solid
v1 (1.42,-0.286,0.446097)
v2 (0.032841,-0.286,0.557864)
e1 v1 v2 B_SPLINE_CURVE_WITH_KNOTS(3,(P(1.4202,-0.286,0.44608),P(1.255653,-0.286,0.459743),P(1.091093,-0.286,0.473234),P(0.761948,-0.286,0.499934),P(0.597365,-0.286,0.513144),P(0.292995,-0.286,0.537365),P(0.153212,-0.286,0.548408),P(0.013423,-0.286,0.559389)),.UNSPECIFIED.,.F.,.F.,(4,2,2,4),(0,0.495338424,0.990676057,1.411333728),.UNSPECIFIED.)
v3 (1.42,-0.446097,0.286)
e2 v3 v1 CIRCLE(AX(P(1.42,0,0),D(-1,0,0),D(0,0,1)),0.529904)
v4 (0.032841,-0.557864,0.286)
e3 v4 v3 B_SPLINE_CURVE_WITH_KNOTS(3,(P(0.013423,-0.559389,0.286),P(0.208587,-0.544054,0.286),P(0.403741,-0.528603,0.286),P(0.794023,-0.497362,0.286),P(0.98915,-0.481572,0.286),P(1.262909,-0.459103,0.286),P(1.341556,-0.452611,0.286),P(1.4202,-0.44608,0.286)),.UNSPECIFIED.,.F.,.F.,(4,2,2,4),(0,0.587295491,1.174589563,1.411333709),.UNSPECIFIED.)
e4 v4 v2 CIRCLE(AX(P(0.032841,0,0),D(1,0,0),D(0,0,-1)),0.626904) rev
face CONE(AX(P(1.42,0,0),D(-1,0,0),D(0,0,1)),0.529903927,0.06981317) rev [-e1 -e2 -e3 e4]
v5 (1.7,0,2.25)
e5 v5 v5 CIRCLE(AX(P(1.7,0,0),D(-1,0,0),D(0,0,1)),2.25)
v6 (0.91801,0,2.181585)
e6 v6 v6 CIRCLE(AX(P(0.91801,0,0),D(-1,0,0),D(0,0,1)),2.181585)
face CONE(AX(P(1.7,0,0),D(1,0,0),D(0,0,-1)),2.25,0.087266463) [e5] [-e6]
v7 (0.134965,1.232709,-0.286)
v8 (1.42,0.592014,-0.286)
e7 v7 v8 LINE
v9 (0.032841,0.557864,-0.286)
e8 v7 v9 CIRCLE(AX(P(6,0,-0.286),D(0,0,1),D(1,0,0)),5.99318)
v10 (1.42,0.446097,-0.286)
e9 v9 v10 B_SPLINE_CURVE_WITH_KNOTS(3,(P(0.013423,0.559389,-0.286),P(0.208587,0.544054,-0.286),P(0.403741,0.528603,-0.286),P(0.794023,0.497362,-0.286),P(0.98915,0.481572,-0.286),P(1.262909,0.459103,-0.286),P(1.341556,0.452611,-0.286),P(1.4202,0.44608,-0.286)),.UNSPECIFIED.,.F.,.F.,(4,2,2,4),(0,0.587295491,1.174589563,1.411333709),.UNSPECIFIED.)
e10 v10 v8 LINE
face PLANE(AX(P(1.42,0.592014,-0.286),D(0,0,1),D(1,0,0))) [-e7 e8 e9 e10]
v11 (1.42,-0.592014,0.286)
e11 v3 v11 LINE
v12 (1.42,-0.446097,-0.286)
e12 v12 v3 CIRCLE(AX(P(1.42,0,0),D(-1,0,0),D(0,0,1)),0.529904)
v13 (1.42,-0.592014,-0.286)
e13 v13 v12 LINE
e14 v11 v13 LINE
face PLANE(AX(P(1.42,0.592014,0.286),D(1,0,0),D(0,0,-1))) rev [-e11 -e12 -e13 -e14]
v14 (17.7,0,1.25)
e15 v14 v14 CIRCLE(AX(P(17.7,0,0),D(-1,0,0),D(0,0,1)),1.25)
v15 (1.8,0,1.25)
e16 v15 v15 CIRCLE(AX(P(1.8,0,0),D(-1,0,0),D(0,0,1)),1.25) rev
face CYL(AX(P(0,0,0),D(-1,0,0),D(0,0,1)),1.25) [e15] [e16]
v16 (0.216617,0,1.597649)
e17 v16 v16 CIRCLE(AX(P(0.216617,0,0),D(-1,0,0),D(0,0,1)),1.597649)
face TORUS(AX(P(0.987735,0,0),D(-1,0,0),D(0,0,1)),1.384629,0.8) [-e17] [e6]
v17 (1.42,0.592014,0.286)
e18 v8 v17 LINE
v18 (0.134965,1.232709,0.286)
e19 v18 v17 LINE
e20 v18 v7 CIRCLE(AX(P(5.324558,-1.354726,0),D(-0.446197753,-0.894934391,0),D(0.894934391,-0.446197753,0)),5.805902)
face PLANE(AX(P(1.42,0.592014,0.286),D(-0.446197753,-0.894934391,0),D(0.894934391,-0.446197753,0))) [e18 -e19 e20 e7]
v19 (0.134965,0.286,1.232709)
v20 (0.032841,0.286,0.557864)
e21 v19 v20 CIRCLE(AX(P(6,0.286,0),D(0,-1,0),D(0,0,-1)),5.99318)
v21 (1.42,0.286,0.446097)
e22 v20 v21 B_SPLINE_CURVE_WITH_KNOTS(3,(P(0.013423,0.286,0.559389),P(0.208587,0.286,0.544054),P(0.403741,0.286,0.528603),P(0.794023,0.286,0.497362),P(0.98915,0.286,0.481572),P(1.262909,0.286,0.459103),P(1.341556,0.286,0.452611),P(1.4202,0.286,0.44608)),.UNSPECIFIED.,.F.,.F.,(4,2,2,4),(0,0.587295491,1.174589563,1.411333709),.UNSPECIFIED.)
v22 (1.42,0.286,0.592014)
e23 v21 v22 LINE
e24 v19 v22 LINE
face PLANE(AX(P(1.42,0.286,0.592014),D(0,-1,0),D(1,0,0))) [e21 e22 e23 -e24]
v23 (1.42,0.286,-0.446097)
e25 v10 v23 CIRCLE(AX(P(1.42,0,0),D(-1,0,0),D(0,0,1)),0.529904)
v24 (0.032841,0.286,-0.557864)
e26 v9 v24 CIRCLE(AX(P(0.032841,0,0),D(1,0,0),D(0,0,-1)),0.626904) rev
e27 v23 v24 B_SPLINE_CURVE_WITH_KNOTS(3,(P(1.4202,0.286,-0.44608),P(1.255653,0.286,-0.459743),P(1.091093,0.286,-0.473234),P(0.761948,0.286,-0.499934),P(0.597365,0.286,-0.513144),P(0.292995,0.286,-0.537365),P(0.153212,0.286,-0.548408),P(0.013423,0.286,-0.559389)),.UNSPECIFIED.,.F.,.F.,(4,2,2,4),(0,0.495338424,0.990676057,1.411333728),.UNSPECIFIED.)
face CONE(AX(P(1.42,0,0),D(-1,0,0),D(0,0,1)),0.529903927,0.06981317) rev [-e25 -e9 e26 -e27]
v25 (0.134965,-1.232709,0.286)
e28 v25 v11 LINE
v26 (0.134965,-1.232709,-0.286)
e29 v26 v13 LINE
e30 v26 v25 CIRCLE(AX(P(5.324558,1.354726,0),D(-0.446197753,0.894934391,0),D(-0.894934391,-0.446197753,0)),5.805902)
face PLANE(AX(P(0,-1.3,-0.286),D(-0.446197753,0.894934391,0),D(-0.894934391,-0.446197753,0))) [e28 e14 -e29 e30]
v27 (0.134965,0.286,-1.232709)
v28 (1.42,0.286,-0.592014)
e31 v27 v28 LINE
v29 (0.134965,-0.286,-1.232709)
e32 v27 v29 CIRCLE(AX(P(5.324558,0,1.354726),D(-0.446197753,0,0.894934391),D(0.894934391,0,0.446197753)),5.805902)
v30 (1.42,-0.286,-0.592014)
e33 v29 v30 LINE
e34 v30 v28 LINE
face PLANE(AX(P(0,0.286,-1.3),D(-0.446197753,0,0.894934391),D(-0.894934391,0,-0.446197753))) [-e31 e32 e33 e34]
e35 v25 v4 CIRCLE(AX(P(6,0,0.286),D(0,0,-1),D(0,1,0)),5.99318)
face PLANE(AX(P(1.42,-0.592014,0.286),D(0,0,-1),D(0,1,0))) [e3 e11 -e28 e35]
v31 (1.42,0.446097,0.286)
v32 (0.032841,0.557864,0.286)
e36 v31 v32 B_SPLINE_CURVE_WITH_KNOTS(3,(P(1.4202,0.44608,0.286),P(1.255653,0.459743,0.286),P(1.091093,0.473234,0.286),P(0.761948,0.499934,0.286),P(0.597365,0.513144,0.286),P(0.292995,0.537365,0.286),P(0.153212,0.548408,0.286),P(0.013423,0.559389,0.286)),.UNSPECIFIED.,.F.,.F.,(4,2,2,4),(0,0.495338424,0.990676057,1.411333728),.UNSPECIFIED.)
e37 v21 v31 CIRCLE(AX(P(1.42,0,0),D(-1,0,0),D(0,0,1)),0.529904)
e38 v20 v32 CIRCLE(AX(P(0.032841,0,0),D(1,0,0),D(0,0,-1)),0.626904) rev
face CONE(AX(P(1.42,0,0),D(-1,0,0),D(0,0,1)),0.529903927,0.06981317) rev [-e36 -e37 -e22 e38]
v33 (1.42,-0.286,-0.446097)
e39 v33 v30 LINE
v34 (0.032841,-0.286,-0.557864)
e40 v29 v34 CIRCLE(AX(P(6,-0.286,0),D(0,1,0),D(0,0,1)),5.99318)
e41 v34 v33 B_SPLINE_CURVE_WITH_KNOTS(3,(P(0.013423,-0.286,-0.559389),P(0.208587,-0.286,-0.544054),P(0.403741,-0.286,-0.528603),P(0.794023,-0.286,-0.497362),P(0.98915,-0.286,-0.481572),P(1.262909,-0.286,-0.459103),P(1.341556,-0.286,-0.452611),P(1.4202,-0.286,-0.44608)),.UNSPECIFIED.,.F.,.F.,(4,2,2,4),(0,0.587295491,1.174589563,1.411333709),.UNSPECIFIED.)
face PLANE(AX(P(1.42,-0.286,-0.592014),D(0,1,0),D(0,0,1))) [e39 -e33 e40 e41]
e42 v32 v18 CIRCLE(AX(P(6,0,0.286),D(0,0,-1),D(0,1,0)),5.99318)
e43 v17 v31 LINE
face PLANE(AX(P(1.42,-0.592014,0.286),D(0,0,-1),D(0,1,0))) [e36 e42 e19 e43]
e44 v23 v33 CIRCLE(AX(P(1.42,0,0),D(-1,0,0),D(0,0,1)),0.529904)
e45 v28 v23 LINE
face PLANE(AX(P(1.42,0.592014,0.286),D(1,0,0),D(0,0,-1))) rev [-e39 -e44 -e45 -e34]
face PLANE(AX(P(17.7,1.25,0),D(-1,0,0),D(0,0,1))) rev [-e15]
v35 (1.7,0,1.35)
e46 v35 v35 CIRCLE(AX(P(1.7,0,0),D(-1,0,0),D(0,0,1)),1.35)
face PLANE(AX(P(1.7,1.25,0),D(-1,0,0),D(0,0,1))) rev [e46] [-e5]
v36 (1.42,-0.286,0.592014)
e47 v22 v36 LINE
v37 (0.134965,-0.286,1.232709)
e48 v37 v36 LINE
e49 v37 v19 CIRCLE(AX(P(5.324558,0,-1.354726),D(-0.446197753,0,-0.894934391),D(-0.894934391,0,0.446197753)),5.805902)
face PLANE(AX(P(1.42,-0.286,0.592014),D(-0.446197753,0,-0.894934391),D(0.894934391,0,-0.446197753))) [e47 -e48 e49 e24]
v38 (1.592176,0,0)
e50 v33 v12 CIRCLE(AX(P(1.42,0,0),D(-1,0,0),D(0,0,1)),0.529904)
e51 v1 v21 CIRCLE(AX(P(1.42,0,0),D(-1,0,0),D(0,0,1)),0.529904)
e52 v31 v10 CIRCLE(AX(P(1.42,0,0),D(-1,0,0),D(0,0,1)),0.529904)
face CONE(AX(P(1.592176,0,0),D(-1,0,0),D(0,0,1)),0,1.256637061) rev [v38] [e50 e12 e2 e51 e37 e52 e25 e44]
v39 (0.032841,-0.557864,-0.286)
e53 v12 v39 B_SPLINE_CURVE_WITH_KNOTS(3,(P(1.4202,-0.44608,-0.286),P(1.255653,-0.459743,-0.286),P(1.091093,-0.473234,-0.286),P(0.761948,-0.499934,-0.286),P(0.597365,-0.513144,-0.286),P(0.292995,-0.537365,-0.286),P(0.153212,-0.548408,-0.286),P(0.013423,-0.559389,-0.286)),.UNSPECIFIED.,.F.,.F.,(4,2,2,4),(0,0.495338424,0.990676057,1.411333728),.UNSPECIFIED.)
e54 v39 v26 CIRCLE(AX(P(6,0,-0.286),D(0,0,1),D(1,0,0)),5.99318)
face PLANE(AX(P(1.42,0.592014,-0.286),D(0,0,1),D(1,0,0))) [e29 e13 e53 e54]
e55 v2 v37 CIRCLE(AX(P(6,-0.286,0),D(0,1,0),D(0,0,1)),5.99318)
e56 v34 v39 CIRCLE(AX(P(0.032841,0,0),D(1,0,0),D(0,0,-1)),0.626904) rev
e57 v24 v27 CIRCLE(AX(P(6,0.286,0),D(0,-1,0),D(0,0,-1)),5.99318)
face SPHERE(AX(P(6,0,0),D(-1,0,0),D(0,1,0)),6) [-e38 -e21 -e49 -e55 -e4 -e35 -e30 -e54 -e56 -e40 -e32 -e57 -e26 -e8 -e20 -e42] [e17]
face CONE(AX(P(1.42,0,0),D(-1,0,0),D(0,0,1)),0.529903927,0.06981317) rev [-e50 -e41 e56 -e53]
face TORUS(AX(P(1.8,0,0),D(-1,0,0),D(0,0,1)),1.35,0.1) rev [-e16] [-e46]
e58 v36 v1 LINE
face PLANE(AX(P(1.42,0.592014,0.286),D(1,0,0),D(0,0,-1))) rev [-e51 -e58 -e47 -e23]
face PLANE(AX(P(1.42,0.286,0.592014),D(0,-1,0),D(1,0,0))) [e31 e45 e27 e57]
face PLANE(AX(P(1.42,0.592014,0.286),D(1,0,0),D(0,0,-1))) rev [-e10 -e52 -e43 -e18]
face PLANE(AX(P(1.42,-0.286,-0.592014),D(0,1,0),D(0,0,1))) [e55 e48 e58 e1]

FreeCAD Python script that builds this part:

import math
import FreeCAD as App
import Part
import Sketcher
Q = App.Units.Quantity


def edges_at(feature, points):
    """Names of the edges that pass closest to the given points."""
    edges = feature.Shape.Edges
    near = lambda p: min(range(len(edges)), key=lambda i: edges[i].distToShape(Part.Vertex(*p))[0])
    return sorted({f"Edge{near(p) + 1}" for p in points})

doc = App.newDocument("Part")
body = doc.addObject("PartDesign::Body", "Body")

# Sketch on XY plane
sketch1 = body.newObject("Sketcher::SketchObject", "Sketch")
sketch1.AttachmentSupport = (doc.getObject("XY_Plane"), [""])
sketch1.MapMode = "FlatFace"
sketch1.addGeometry([
    Part.LineSegment(App.Vector(1.7, 1.2, 0), App.Vector(1.7, 2.2, 0)),  # 0
    Part.LineSegment(App.Vector(1.7, 2.2, 0), App.Vector(0.9, 2.2, 0)),  # 1
    Part.ArcOfCircle(Part.Circle(App.Vector(1, 1.4, 0), App.Vector(0, 0, 1), 0.8), math.radians(95), math.radians(165)),  # 2
    Part.ArcOfCircle(Part.Circle(App.Vector(6, 0, 0), App.Vector(0, 0, 1), 6), math.radians(164.56), math.radians(180)),  # 3
    Part.LineSegment(App.Vector(0, 0, 0), App.Vector(17.7, 0, 0)),  # 4
    Part.LineSegment(App.Vector(17.7, 0, 0), App.Vector(17.7, 1.2, 0)),  # 5
    Part.LineSegment(App.Vector(17.7, 1.2, 0), App.Vector(1.7, 1.2, 0)),  # 6
], False)
sketch1.addConstraint([
    Sketcher.Constraint("Coincident", 0, 2, 1, 1),
    Sketcher.Constraint("Tangent", 1, 2, 2, 1),
    Sketcher.Constraint("Tangent", 2, 2, 3, 1),
    Sketcher.Constraint("Coincident", 3, 2, 4, 1),
    Sketcher.Constraint("Coincident", 4, 2, 5, 1),
    Sketcher.Constraint("Coincident", 5, 2, 6, 1),
    Sketcher.Constraint("Coincident", 6, 2, 0, 1),
    Sketcher.Constraint("Vertical", 0),
    Sketcher.Constraint("Horizontal", 4),
    Sketcher.Constraint("Vertical", 5),
    Sketcher.Constraint("Horizontal", 6),
    Sketcher.Constraint("Coincident", 3, 2, -1, 1),
    Sketcher.Constraint("PointOnObject", 3, 3, -1),
    Sketcher.Constraint("Radius", 3, Q("6 mm")),
    Sketcher.Constraint("Radius", 2, Q("0.8 mm")),
    Sketcher.Constraint("DistanceX", 6, 2, 6, 1, Q("16 mm")),
    Sketcher.Constraint("DistanceY", 0, 1, 0, 2, Q("1 mm")),
    Sketcher.Constraint("Angle", 1, Q("-175 deg")),
    Sketcher.Constraint("DistanceX", 4, 1, 4, 2, Q("17.7 mm")),
    Sketcher.Constraint("DistanceY", 5, 1, 5, 2, Q("1.25 mm")),
])
revolution = body.newObject("PartDesign::Revolution", "Revolution")
revolution.Profile = sketch1
revolution.ReferenceAxis = (sketch1, ["H_Axis"])
revolution.Angle = 360
doc.recompute()

fillet = body.newObject("PartDesign::Fillet", "Fillet")
fillet.Base = (revolution, edges_at(revolution, [(1.7, 0, -1.25)]))
fillet.Radius = 0.1

# Sketch on YZ plane
sketch2 = body.newObject("Sketcher::SketchObject", "Sketch001")
sketch2.AttachmentSupport = (doc.getObject("YZ_Plane"), [""])
sketch2.MapMode = "FlatFace"
sketch2.addGeometry([
    Part.LineSegment(App.Vector(1.3, -0.3, 0), App.Vector(1.3, 0.3, 0)),
    Part.LineSegment(App.Vector(1.3, 0.3, 0), App.Vector(-1.3, 0.3, 0)),
    Part.LineSegment(App.Vector(-1.3, 0.3, 0), App.Vector(-1.3, -0.3, 0)),
    Part.LineSegment(App.Vector(-1.3, -0.3, 0), App.Vector(1.3, -0.3, 0)),
], False)
sketch2.addConstraint([
    Sketcher.Constraint("Coincident", 0, 2, 1, 1),
    Sketcher.Constraint("Coincident", 1, 2, 2, 1),
    Sketcher.Constraint("Coincident", 2, 2, 3, 1),
    Sketcher.Constraint("Coincident", 3, 2, 0, 1),
    Sketcher.Constraint("Vertical", 0),
    Sketcher.Constraint("Horizontal", 1),
    Sketcher.Constraint("Vertical", 2),
    Sketcher.Constraint("Horizontal", 3),
    Sketcher.Constraint("Symmetric", 0, 2, 2, 2, -1, 1),
    Sketcher.Constraint("DistanceX", 1, 2, 1, 1, Q("2.6 mm")),
    Sketcher.Constraint("DistanceY", 0, 1, 0, 2, Q("0.572 mm")),
])

# Sketch on YZ plane
sketch3 = body.newObject("Sketcher::SketchObject", "Sketch002")
sketch3.AttachmentSupport = (doc.getObject("YZ_Plane"), [""])
sketch3.MapMode = "FlatFace"
sketch3.AttachmentOffset = App.Placement(App.Vector(0, 0, 1.42), App.Rotation())
sketch3.addGeometry([
    Part.LineSegment(App.Vector(0.6, -0.3, 0), App.Vector(0.6, 0.3, 0)),
    Part.LineSegment(App.Vector(0.6, 0.3, 0), App.Vector(-0.6, 0.3, 0)),
    Part.LineSegment(App.Vector(-0.6, 0.3, 0), App.Vector(-0.6, -0.3, 0)),
    Part.LineSegment(App.Vector(-0.6, -0.3, 0), App.Vector(0.6, -0.3, 0)),
], False)
sketch3.addConstraint([
    Sketcher.Constraint("Coincident", 0, 2, 1, 1),
    Sketcher.Constraint("Coincident", 1, 2, 2, 1),
    Sketcher.Constraint("Coincident", 2, 2, 3, 1),
    Sketcher.Constraint("Coincident", 3, 2, 0, 1),
    Sketcher.Constraint("Vertical", 0),
    Sketcher.Constraint("Horizontal", 1),
    Sketcher.Constraint("Vertical", 2),
    Sketcher.Constraint("Horizontal", 3),
    Sketcher.Constraint("Symmetric", 0, 2, 2, 2, -1, 1),
    Sketcher.Constraint("DistanceY", 0, 1, 0, 2, Q("0.572 mm")),
    Sketcher.Constraint("DistanceX", 1, 2, 1, 1, Q("1.184028 mm")),
])

subtractiveloft = body.newObject("PartDesign::SubtractiveLoft", "SubtractiveLoft")
subtractiveloft.Profile = sketch2
subtractiveloft.Sections = [sketch3]
doc.recompute()

polarpattern = body.newObject("PartDesign::PolarPattern", "PolarPattern")
polarpattern.Originals = [subtractiveloft]
polarpattern.Axis = (doc.getObject("X_Axis"), [""])
polarpattern.Angle = 90
polarpattern.Occurrences = 2
body.Tip = polarpattern

# Sketch on XY plane
sketch4 = body.newObject("Sketcher::SketchObject", "Sketch003")
sketch4.AttachmentSupport = (doc.getObject("XY_Plane"), [""])
sketch4.MapMode = "FlatFace"
sketch4.addGeometry([
    Part.LineSegment(App.Vector(0, 0.6, 0), App.Vector(0, 0, 0)),
    Part.LineSegment(App.Vector(0, 0, 0), App.Vector(1.6, 0, 0)),
    Part.LineSegment(App.Vector(1.6, 0, 0), App.Vector(1.4, 0.5, 0)),
    Part.LineSegment(App.Vector(1.4, 0.5, 0), App.Vector(0, 0.6, 0)),
], False)
sketch4.addConstraint([
    Sketcher.Constraint("Coincident", 0, 2, 1, 1),
    Sketcher.Constraint("Coincident", 1, 2, 2, 1),
    Sketcher.Constraint("Coincident", 2, 2, 3, 1),
    Sketcher.Constraint("Coincident", 3, 2, 0, 1),
    Sketcher.Constraint("Vertical", 0),
    Sketcher.Constraint("Horizontal", 1),
    Sketcher.Constraint("Coincident", 0, 2, -1, 1),
    Sketcher.Constraint("Angle", 2, Q("108 deg")),
    Sketcher.Constraint("Angle", 3, Q("176 deg")),
    Sketcher.Constraint("DistanceX", -1, 1, 2, 2, Q("1.42 mm")),
    Sketcher.Constraint("DistanceY", 0, 2, 0, 1, Q("0.6292 mm")),
])
groove = body.newObject("PartDesign::Groove", "Groove")
groove.Profile = sketch4
groove.ReferenceAxis = (sketch4, ["H_Axis"])
groove.Angle = 360

doc.recompute()
